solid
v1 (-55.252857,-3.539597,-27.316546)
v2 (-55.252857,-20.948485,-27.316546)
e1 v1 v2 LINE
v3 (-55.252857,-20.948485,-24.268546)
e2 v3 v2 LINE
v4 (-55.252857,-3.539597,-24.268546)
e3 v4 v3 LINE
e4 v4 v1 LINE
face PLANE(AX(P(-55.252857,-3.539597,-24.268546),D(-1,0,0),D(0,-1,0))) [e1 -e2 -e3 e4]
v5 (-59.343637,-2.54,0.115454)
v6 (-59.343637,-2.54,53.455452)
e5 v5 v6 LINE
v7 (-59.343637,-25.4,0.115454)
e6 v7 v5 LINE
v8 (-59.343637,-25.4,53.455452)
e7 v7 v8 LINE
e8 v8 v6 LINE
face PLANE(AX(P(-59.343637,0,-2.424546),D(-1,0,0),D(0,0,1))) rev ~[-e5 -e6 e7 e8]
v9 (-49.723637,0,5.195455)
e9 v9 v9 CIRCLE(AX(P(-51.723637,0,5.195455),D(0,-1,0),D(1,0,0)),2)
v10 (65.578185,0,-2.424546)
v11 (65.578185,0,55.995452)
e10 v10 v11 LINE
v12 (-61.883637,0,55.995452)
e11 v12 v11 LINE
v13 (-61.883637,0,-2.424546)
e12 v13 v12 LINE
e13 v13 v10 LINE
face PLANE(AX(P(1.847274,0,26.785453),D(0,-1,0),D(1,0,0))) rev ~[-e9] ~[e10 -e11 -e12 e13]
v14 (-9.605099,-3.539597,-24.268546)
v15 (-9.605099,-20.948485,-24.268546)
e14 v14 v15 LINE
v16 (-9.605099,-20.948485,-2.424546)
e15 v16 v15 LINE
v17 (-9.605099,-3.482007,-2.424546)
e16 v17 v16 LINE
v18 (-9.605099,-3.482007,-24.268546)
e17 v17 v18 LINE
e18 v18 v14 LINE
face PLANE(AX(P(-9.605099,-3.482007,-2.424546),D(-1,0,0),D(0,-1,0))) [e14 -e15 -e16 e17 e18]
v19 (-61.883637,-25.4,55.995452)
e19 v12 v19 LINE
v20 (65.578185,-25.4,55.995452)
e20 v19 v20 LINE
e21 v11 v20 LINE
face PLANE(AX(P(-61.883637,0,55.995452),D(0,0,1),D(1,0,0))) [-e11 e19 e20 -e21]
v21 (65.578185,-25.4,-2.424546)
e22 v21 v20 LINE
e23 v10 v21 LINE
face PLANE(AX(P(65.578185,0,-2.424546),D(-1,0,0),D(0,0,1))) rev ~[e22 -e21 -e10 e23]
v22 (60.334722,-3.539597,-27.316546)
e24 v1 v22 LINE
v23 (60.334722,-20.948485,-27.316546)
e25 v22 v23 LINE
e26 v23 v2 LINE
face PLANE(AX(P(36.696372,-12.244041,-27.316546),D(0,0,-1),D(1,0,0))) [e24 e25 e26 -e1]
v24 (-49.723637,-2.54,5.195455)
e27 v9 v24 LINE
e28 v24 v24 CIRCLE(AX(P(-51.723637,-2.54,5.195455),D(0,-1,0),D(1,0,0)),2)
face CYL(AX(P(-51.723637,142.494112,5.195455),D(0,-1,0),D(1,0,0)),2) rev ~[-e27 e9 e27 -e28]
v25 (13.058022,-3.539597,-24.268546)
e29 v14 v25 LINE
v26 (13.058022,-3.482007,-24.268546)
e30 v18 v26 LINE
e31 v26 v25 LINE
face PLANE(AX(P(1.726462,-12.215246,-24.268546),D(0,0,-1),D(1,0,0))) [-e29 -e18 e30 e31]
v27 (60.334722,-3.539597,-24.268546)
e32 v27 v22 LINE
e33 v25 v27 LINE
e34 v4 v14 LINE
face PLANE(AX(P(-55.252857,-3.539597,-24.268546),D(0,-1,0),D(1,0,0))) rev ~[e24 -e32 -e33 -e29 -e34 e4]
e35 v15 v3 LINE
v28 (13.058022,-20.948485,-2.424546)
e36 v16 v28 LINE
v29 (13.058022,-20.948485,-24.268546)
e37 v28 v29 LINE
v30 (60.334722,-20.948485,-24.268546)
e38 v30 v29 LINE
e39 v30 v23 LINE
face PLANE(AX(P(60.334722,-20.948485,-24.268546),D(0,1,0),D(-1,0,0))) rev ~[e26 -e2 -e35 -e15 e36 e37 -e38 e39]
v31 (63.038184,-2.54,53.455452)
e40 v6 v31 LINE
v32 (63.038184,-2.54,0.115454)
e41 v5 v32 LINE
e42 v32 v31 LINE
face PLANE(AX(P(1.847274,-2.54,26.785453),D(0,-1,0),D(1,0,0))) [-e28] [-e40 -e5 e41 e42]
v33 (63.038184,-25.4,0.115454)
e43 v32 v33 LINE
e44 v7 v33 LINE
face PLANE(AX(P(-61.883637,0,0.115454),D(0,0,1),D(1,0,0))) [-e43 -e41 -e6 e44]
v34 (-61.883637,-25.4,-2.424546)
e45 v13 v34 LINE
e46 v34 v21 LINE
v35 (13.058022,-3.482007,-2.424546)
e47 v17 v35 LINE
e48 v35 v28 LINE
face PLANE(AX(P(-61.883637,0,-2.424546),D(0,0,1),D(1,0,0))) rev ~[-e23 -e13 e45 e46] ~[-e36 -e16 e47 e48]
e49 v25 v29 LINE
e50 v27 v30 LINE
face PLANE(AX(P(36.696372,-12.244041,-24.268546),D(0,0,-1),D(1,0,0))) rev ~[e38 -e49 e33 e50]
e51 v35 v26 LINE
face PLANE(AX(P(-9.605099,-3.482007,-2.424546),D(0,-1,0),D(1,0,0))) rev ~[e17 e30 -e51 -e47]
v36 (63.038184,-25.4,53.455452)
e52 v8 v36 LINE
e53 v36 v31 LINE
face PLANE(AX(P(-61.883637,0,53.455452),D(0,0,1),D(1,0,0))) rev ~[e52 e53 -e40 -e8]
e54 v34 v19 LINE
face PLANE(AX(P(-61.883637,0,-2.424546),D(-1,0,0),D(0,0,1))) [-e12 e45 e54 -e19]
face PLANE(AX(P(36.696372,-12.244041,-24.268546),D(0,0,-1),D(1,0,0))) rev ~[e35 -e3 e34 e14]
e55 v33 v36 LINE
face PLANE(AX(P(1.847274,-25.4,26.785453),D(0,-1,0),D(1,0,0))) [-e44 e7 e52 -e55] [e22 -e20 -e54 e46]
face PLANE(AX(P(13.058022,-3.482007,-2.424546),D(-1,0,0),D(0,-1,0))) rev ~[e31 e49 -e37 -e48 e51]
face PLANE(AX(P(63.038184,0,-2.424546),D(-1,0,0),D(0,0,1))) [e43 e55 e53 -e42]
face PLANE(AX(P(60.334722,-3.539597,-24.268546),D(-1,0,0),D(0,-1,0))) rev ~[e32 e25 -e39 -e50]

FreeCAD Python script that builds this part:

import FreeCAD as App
import Part
import Sketcher
from FreeCAD import Vector
Q = App.Units.Quantity


def faces_at(feature, points):
    """Names of the faces that lie closest to the given points."""
    faces = feature.Shape.Faces
    near = lambda p: min(range(len(faces)), key=lambda i: faces[i].distToShape(Part.Vertex(*p))[0])
    return sorted({f"Face{near(p) + 1}" for p in points})


def add_polygon(sketch, points):
    """Adds a closed chain of lines whose ends are joined by coincident constraints."""
    first, n = sketch.GeometryCount, len(points)
    for a, b in zip(points, points[1:] + points[:1]):
        sketch.addGeometry(Part.LineSegment(App.Vector(*a, 0), App.Vector(*b, 0)), False)
    for i in range(n):
        sketch.addConstraint(Sketcher.Constraint("Coincident", first + i, 2, first + (i + 1) % n, 1))

doc = App.newDocument("Part")
body = doc.addObject("PartDesign::Body", "Body")

sketch1 = doc.addObject("Sketcher::SketchObject", "Sketch")
body.addObject(sketch1)
sketch1.AttachmentSupport = (doc.XZ_Plane, [""])
sketch1.MapMode = "FlatFace"
add_polygon(sketch1, [(-62, 56), (-62, -2), (66, -2), (66, 56)])
sketch1.addConstraint([
    Sketcher.Constraint("Vertical", 0),
    Sketcher.Constraint("Horizontal", 1),
    Sketcher.Constraint("Vertical", 2),
    Sketcher.Constraint("Horizontal", 3),
    Sketcher.Constraint("DistanceY", 0, 2, 0, 1, Q("2.3 in")),
    Sketcher.Constraint("DistanceX", 1, 1, 1, 2, Q("127.461821 mm")),
    Sketcher.Constraint("DistanceX", 0, 2, -1, 1, Q("61.883637 mm")),
    Sketcher.Constraint("DistanceY", 0, 2, -1, 1, Q("2.424546 mm")),
])
pad1 = doc.addObject("PartDesign::Pad", "Pad")
body.addObject(pad1)
pad1.Profile = sketch1
pad1.Length = Q("1 in")
doc.recompute()

thickness = doc.addObject("PartDesign::Thickness", "Thickness")
body.addObject(thickness)
thickness.Base = (pad1, faces_at(pad1, [(1.847, -25.4, 26.785)]))
thickness.Value = Q("0.1 in")
thickness.Reversed = True
thickness.Join = "Arc"

sketch2 = doc.addObject("Sketcher::SketchObject", "Sketch001")
body.addObject(sketch2)
sketch2.AttachmentSupport = (doc.XZ_Plane, [""])
sketch2.MapMode = "FlatFace"
sketch2.addGeometry(Part.Circle(Vector(-51.7, 5.2, 0), Vector(0, 0, 1), 2), False)
sketch2.addConstraint([
    Sketcher.Constraint("Diameter", 0, Q("4 mm")),
    Sketcher.Constraint("DistanceX", 0, 3, -1, 1, Q("51.723637 mm")),
    Sketcher.Constraint("DistanceY", -1, 1, 0, 3, Q("5.195455 mm")),
])
doc.recompute()
hole = doc.addObject("PartDesign::Hole", "Hole")
body.addObject(hole)
hole.Profile = sketch2
hole.ThreadType = "None"
hole.Diameter = 4
hole.DepthType = "ThroughAll"
hole.Reversed = True

sketch3 = doc.addObject("Sketcher::SketchObject", "Sketch002")
body.addObject(sketch3)
sketch3.AttachmentSupport = (doc.XY_Plane, [""])
sketch3.MapMode = "FlatFace"
sketch3.AttachmentOffset = App.Placement(Vector(0, 0, -2.424546), App.Rotation())
add_polygon(sketch3, [(-10, -21), (-10, -3), (13, -3), (13, -21)])
sketch3.addConstraint([
    Sketcher.Constraint("Vertical", 0),
    Sketcher.Constraint("Horizontal", 1),
    Sketcher.Constraint("Vertical", 2),
    Sketcher.Constraint("Horizontal", 3),
    Sketcher.Constraint("DistanceX", 1, 1, 1, 2, Q("22.663121 mm")),
    Sketcher.Constraint("DistanceY", 0, 1, 0, 2, Q("17.466478 mm")),
    Sketcher.Constraint("DistanceX", 0, 2, -1, 1, Q("9.605099 mm")),
    Sketcher.Constraint("DistanceY", 0, 2, -1, 1, Q("3.482007 mm")),
])
pad2 = doc.addObject("PartDesign::Pad", "Pad001")
body.addObject(pad2)
pad2.Profile = sketch3
pad2.Length = Q("0.86 in")
pad2.Reversed = True

sketch4 = doc.addObject("Sketcher::SketchObject", "Sketch003")
body.addObject(sketch4)
sketch4.AttachmentSupport = (doc.XY_Plane, [""])
sketch4.MapMode = "FlatFace"
sketch4.AttachmentOffset = App.Placement(Vector(0, 0, -24.268546), App.Rotation())
add_polygon(sketch4, [(-55, -21), (-55, -4), (60, -4), (60, -21)])
sketch4.addConstraint([
    Sketcher.Constraint("Vertical", 0),
    Sketcher.Constraint("Horizontal", 1),
    Sketcher.Constraint("Vertical", 2),
    Sketcher.Constraint("Horizontal", 3),
    Sketcher.Constraint("DistanceX", 1, 1, 1, 2, Q("115.58758 mm")),
    Sketcher.Constraint("DistanceY", 0, 1, 0, 2, Q("17.408888 mm")),
    Sketcher.Constraint("DistanceX", 0, 2, -1, 1, Q("55.252857 mm")),
    Sketcher.Constraint("DistanceY", 0, 2, -1, 1, Q("3.539597 mm")),
])
pad3 = doc.addObject("PartDesign::Pad", "Pad002")
body.addObject(pad3)
pad3.Profile = sketch4
pad3.Length = Q("0.12 in")
pad3.Reversed = True

doc.recompute()
